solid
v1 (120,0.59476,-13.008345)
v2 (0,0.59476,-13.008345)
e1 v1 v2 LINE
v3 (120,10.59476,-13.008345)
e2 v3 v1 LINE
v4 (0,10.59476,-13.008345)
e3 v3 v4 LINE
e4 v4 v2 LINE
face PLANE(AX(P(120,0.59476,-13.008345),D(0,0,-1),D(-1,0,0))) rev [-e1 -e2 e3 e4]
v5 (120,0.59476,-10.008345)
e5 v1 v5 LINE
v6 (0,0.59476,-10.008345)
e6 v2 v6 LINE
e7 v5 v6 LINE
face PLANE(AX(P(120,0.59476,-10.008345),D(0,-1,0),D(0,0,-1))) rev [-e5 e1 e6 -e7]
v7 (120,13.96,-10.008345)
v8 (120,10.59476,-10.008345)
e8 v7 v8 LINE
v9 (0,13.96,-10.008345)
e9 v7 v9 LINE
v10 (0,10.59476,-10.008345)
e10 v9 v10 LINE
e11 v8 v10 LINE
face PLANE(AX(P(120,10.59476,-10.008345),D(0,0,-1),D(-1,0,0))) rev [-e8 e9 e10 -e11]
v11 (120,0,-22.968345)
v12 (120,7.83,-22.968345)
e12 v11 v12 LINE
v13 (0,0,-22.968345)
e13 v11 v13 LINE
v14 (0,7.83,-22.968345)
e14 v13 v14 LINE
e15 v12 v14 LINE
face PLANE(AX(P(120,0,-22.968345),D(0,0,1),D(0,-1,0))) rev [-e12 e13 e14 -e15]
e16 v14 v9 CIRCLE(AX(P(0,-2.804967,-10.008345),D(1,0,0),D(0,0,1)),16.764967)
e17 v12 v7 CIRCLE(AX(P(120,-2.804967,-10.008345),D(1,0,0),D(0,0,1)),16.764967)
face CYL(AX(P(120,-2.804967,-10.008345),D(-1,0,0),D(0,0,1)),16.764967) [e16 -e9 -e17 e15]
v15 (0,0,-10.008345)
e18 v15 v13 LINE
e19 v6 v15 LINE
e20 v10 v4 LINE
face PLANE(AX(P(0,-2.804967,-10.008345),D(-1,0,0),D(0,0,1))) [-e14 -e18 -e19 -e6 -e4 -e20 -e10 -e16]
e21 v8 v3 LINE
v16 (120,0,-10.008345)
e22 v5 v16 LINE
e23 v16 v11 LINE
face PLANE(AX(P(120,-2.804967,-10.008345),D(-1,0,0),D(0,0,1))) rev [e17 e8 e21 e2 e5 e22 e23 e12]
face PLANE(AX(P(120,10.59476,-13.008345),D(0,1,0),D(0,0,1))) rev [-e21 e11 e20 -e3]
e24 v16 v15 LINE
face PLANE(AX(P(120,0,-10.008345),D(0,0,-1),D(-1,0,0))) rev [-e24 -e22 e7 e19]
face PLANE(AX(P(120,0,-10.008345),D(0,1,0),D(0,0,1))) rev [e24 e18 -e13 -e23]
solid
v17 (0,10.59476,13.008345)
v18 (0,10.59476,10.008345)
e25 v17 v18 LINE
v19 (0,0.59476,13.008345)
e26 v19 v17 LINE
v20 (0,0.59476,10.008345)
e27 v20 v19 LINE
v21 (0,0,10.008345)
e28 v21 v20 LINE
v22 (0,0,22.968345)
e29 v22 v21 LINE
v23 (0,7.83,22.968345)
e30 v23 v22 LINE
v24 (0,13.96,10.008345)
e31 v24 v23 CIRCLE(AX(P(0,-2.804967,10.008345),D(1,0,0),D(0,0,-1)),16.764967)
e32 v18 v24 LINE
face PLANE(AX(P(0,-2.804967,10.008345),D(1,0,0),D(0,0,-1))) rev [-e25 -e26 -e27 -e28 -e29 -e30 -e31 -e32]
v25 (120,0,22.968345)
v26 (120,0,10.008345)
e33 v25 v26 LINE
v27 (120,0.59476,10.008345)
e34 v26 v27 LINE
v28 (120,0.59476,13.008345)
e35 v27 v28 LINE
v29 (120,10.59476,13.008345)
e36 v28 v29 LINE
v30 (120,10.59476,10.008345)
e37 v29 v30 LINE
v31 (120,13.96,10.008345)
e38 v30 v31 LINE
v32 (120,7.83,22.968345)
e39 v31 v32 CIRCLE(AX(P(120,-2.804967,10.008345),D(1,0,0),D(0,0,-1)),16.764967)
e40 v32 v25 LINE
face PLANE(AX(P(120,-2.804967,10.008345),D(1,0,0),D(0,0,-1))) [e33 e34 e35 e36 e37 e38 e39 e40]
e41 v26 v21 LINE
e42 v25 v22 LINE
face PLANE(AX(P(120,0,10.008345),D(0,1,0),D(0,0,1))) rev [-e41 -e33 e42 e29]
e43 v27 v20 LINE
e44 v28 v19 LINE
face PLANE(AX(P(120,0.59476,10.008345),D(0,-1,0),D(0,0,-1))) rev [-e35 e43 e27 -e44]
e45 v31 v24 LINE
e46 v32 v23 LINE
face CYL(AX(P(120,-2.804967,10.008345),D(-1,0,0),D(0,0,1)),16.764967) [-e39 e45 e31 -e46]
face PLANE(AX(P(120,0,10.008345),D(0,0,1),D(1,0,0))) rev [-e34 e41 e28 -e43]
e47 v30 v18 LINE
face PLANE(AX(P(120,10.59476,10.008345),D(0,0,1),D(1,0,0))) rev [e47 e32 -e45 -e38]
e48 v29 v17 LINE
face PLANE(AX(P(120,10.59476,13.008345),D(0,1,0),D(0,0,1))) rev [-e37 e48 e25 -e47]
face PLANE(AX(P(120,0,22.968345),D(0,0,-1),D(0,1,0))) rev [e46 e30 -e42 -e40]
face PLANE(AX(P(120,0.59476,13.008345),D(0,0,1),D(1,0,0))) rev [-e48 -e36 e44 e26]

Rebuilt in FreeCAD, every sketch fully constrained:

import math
import FreeCAD as App
import Part
import Sketcher
Q = App.Units.Quantity

doc = App.newDocument("Part")
body = doc.addObject("PartDesign::Body", "Body")

# Sketch on YZ plane
sketch1 = doc.addObject("Sketcher::SketchObject", "Sketch")
body.addObject(sketch1)
sketch1.AttachmentSupport = (doc.YZ_Plane, [""])
sketch1.MapMode = "FlatFace"
sketch1.addGeometry(Part.LineSegment(App.Vector(0, -10.008345, 0), App.Vector(0, -22.968345, 0)), False)
sketch1.addGeometry(Part.LineSegment(App.Vector(0, -22.968345, 0), App.Vector(7.83, -22.968345, 0)), False)
sketch1.addGeometry(Part.ArcOfCircle(Part.Circle(App.Vector(-2.804967, -10.008345, 0), App.Vector(0, 0, 1), 16.764967), math.radians(-50.62772), math.radians(0)), False)
sketch1.addGeometry(Part.LineSegment(App.Vector(13.96, -10.008345, 0), App.Vector(10.59476, -10.008345, 0)), False)
sketch1.addGeometry(Part.LineSegment(App.Vector(10.59476, -10.008345, 0), App.Vector(10.59476, -13.008345, 0)), False)
sketch1.addGeometry(Part.LineSegment(App.Vector(10.59476, -13.008345, 0), App.Vector(0.59476, -13.008345, 0)), False)
sketch1.addGeometry(Part.LineSegment(App.Vector(0.59476, -13.008345, 0), App.Vector(0.59476, -10.008345, 0)), False)
sketch1.addGeometry(Part.LineSegment(App.Vector(0.59476, -10.008345, 0), App.Vector(0, -10.008345, 0)), False)
sketch1.addConstraint(Sketcher.Constraint("Coincident", 0, 2, 1, 1))
sketch1.addConstraint(Sketcher.Constraint("Coincident", 1, 2, 2, 1))
sketch1.addConstraint(Sketcher.Constraint("Coincident", 2, 2, 3, 1))
sketch1.addConstraint(Sketcher.Constraint("Coincident", 3, 2, 4, 1))
sketch1.addConstraint(Sketcher.Constraint("Coincident", 4, 2, 5, 1))
sketch1.addConstraint(Sketcher.Constraint("Coincident", 5, 2, 6, 1))
sketch1.addConstraint(Sketcher.Constraint("Coincident", 6, 2, 7, 1))
sketch1.addConstraint(Sketcher.Constraint("Coincident", 7, 2, 0, 1))
sketch1.addConstraint(Sketcher.Constraint("Vertical", 0))
sketch1.addConstraint(Sketcher.Constraint("Horizontal", 1))
sketch1.addConstraint(Sketcher.Constraint("Horizontal", 3))
sketch1.addConstraint(Sketcher.Constraint("Vertical", 4))
sketch1.addConstraint(Sketcher.Constraint("Horizontal", 5))
sketch1.addConstraint(Sketcher.Constraint("Vertical", 6))
sketch1.addConstraint(Sketcher.Constraint("Horizontal", 7))
sketch1.addConstraint(Sketcher.Constraint("PointOnObject", 0, 2, -2))
sketch1.addConstraint(Sketcher.Constraint("Horizontal", 3, 2, 6, 2))
sketch1.addConstraint(Sketcher.Constraint("DistanceX", 5, 2, 5, 1, Q("10 mm")))
sketch1.addConstraint(Sketcher.Constraint("DistanceY", 4, 2, 4, 1, Q("3 mm")))
sketch1.addConstraint(Sketcher.Constraint("DistanceY", 4, 2, 2, 3, Q("3 mm")))
sketch1.addConstraint(Sketcher.Constraint("DistanceX", 1, 1, 1, 2, Q("7.83 mm")))
sketch1.addConstraint(Sketcher.Constraint("DistanceY", 0, 2, 0, 1, Q("12.96 mm")))
sketch1.addConstraint(Sketcher.Constraint("DistanceX", -1, 1, 2, 2, Q("13.96 mm")))
sketch1.addConstraint(Sketcher.Constraint("DistanceX", 3, 2, 3, 1, Q("3.36524 mm")))
sketch1.addConstraint(Sketcher.Constraint("DistanceY", 2, 3, -1, 1, Q("10.008345 mm")))
pad1 = doc.addObject("PartDesign::Pad", "Pad")
body.addObject(pad1)
pad1.Profile = sketch1
pad1.Length = 120
body2 = doc.addObject("PartDesign::Body", "Body001")

# Sketch on YZ plane
sketch2 = doc.addObject("Sketcher::SketchObject", "Sketch001")
body2.addObject(sketch2)
sketch2.AttachmentSupport = (doc.getObject("YZ_Plane001"), [""])
sketch2.MapMode = "FlatFace"
sketch2.addGeometry(Part.LineSegment(App.Vector(10.59476, 10.008345, 0), App.Vector(13.96, 10.008345, 0)), False)
sketch2.addGeometry(Part.ArcOfCircle(Part.Circle(App.Vector(-2.804967, 10.008345, 0), App.Vector(0, 0, 1), 16.764967), math.radians(0), math.radians(50.62772)), False)
sketch2.addGeometry(Part.LineSegment(App.Vector(7.83, 22.968345, 0), App.Vector(0, 22.968345, 0)), False)
sketch2.addGeometry(Part.LineSegment(App.Vector(0, 22.968345, 0), App.Vector(0, 10.008345, 0)), False)
sketch2.addGeometry(Part.LineSegment(App.Vector(0, 10.008345, 0), App.Vector(0.59476, 10.008345, 0)), False)
sketch2.addGeometry(Part.LineSegment(App.Vector(0.59476, 10.008345, 0), App.Vector(0.59476, 13.008345, 0)), False)
sketch2.addGeometry(Part.LineSegment(App.Vector(0.59476, 13.008345, 0), App.Vector(10.59476, 13.008345, 0)), False)
sketch2.addGeometry(Part.LineSegment(App.Vector(10.59476, 13.008345, 0), App.Vector(10.59476, 10.008345, 0)), False)
sketch2.addConstraint(Sketcher.Constraint("Coincident", 0, 2, 1, 1))
sketch2.addConstraint(Sketcher.Constraint("Coincident", 1, 2, 2, 1))
sketch2.addConstraint(Sketcher.Constraint("Coincident", 2, 2, 3, 1))
sketch2.addConstraint(Sketcher.Constraint("Coincident", 3, 2, 4, 1))
sketch2.addConstraint(Sketcher.Constraint("Coincident", 4, 2, 5, 1))
sketch2.addConstraint(Sketcher.Constraint("Coincident", 5, 2, 6, 1))
sketch2.addConstraint(Sketcher.Constraint("Coincident", 6, 2, 7, 1))
sketch2.addConstraint(Sketcher.Constraint("Coincident", 7, 2, 0, 1))
sketch2.addConstraint(Sketcher.Constraint("Horizontal", 0))
sketch2.addConstraint(Sketcher.Constraint("Horizontal", 2))
sketch2.addConstraint(Sketcher.Constraint("Vertical", 3))
sketch2.addConstraint(Sketcher.Constraint("Horizontal", 4))
sketch2.addConstraint(Sketcher.Constraint("Vertical", 5))
sketch2.addConstraint(Sketcher.Constraint("Horizontal", 6))
sketch2.addConstraint(Sketcher.Constraint("Vertical", 7))
sketch2.addConstraint(Sketcher.Constraint("PointOnObject", 2, 2, -2))
sketch2.addConstraint(Sketcher.Constraint("Horizontal", 1, 3, 0, 2))
sketch2.addConstraint(Sketcher.Constraint("Horizontal", 0, 2, 3, 2))
sketch2.addConstraint(Sketcher.Constraint("DistanceX", 6, 1, 6, 2, Q("10 mm")))
sketch2.addConstraint(Sketcher.Constraint("DistanceY", 5, 1, 5, 2, Q("3 mm")))
sketch2.addConstraint(Sketcher.Constraint("DistanceX", 2, 2, 2, 1, Q("7.83 mm")))
sketch2.addConstraint(Sketcher.Constraint("DistanceY", 3, 2, 3, 1, Q("12.96 mm")))
sketch2.addConstraint(Sketcher.Constraint("DistanceX", -1, 1, 0, 2, Q("13.96 mm")))
sketch2.addConstraint(Sketcher.Constraint("DistanceX", 0, 1, 0, 2, Q("3.36524 mm")))
sketch2.addConstraint(Sketcher.Constraint("DistanceY", -1, 1, 1, 3, Q("10.008345 mm")))
pad2 = doc.addObject("PartDesign::Pad", "Pad001")
body2.addObject(pad2)
pad2.Profile = sketch2
pad2.Length = 120

doc.recompute()
